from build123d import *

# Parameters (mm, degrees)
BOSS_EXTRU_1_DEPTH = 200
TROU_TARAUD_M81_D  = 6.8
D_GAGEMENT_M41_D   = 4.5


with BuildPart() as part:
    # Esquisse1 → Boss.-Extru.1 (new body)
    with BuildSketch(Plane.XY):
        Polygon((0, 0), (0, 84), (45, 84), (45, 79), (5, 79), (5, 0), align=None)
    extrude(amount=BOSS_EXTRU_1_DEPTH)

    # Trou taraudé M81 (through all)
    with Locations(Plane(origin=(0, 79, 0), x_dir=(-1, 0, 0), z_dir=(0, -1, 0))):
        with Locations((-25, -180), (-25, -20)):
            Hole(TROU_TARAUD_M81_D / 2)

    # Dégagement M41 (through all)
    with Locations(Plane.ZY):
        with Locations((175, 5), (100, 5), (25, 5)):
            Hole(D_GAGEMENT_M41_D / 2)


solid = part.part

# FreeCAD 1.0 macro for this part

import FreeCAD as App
import Part
import Sketcher
from FreeCAD import Vector

doc = App.newDocument("Part")
body = doc.addObject("PartDesign::Body", "Body")

sketch1 = body.newObject("Sketcher::SketchObject", "Sketch")
sketch1.AttachmentSupport = (doc.getObject("XY_Plane"), [""])
sketch1.MapMode = "FlatFace"
sketch1.addGeometry([
    Part.LineSegment(Vector(0, 84, 0), Vector(0, 0, 0)),
    Part.LineSegment(Vector(0, 0, 0), Vector(5, 0, 0)),
    Part.LineSegment(Vector(5, 0, 0), Vector(5, 79, 0)),
    Part.LineSegment(Vector(5, 79, 0), Vector(45, 79, 0)),
    Part.LineSegment(Vector(45, 79, 0), Vector(45, 84, 0)),
    Part.LineSegment(Vector(45, 84, 0), Vector(0, 84, 0)),
], False)
sketch1.addConstraint([
    Sketcher.Constraint("Coincident", 0, 2, 1, 1),
    Sketcher.Constraint("Coincident", 1, 2, 2, 1),
    Sketcher.Constraint("Coincident", 2, 2, 3, 1),
    Sketcher.Constraint("Coincident", 3, 2, 4, 1),
    Sketcher.Constraint("Coincident", 4, 2, 5, 1),
    Sketcher.Constraint("Coincident", 5, 2, 0, 1),
    Sketcher.Constraint("Vertical", 0),
    Sketcher.Constraint("Horizontal", 1),
    Sketcher.Constraint("Vertical", 2),
    Sketcher.Constraint("Horizontal", 3),
    Sketcher.Constraint("Vertical", 4),
    Sketcher.Constraint("Horizontal", 5),
    Sketcher.Constraint("Coincident", 0, 2, -1, 1),
    Sketcher.Constraint("Equal", 1, 4),
    Sketcher.Constraint("DistanceX", 1, 1, 1, 2, 5.0),
    Sketcher.Constraint("DistanceX", 3, 1, 3, 2, 40.0),
    Sketcher.Constraint("DistanceY", 0, 2, 0, 1, 84.0),
])
pad1 = body.newObject("PartDesign::Pad", "Pad")
pad1.Profile = sketch1
pad1.Length = 200

sketch2 = body.newObject("Sketcher::SketchObject", "Sketch001")
sketch2.AttachmentSupport = (doc.getObject("XZ_Plane"), [""])
sketch2.MapMode = "FlatFace"
sketch2.AttachmentOffset = App.Placement(Vector(0, 0, -79), App.Rotation())
sketch2.addGeometry([
    Part.Circle(Vector(25, 180, 0), Vector(0, 0, 1), 3.4),
    Part.Circle(Vector(25, 20, 0), Vector(0, 0, 1), 3.4),
], False)
sketch2.addConstraint([
    Sketcher.Constraint("Equal", 0, 1),
    Sketcher.Constraint("Vertical", 0, 3, 1, 3),
    Sketcher.Constraint("Diameter", 0, 6.8),
    Sketcher.Constraint("DistanceX", -1, 1, 0, 3, 25.0),
    Sketcher.Constraint("DistanceY", -1, 1, 0, 3, 180.0),
    Sketcher.Constraint("DistanceY", -1, 1, 1, 3, 20.0),
])
doc.recompute()
hole = body.newObject("PartDesign::Hole", "Hole")
hole.Profile = sketch2
hole.ThreadType = "None"
hole.Diameter = 6.8
hole.DepthType = "ThroughAll"

sketch3 = body.newObject("Sketcher::SketchObject", "Sketch002")
sketch3.AttachmentSupport = (doc.getObject("YZ_Plane"), [""])
sketch3.MapMode = "FlatFace"
sketch3.addGeometry([
    Part.Circle(Vector(5, 175, 0), Vector(0, 0, 1), 2.2),
    Part.Circle(Vector(5, 100, 0), Vector(0, 0, 1), 2.2),
    Part.Circle(Vector(5, 25, 0), Vector(0, 0, 1), 2.2),
], False)
sketch3.addConstraint([
    Sketcher.Constraint("Equal", 0, 1),
    Sketcher.Constraint("Equal", 1, 2),
    Sketcher.Constraint("Vertical", 0, 3, 1, 3),
    Sketcher.Constraint("Vertical", 1, 3, 2, 3),
    Sketcher.Constraint("Diameter", 0, 4.5),
    Sketcher.Constraint("DistanceX", -1, 1, 0, 3, 5.0),
    Sketcher.Constraint("DistanceY", -1, 1, 0, 3, 175.0),
    Sketcher.Constraint("DistanceY", -1, 1, 1, 3, 100.0),
    Sketcher.Constraint("DistanceY", -1, 1, 2, 3, 25.0),
])
doc.recompute()
hole2 = body.newObject("PartDesign::Hole", "Hole001")
hole2.Profile = sketch3
hole2.ThreadType = "None"
hole2.Diameter = 4.5
hole2.DepthType = "ThroughAll"
hole2.Reversed = True

doc.recompute()
